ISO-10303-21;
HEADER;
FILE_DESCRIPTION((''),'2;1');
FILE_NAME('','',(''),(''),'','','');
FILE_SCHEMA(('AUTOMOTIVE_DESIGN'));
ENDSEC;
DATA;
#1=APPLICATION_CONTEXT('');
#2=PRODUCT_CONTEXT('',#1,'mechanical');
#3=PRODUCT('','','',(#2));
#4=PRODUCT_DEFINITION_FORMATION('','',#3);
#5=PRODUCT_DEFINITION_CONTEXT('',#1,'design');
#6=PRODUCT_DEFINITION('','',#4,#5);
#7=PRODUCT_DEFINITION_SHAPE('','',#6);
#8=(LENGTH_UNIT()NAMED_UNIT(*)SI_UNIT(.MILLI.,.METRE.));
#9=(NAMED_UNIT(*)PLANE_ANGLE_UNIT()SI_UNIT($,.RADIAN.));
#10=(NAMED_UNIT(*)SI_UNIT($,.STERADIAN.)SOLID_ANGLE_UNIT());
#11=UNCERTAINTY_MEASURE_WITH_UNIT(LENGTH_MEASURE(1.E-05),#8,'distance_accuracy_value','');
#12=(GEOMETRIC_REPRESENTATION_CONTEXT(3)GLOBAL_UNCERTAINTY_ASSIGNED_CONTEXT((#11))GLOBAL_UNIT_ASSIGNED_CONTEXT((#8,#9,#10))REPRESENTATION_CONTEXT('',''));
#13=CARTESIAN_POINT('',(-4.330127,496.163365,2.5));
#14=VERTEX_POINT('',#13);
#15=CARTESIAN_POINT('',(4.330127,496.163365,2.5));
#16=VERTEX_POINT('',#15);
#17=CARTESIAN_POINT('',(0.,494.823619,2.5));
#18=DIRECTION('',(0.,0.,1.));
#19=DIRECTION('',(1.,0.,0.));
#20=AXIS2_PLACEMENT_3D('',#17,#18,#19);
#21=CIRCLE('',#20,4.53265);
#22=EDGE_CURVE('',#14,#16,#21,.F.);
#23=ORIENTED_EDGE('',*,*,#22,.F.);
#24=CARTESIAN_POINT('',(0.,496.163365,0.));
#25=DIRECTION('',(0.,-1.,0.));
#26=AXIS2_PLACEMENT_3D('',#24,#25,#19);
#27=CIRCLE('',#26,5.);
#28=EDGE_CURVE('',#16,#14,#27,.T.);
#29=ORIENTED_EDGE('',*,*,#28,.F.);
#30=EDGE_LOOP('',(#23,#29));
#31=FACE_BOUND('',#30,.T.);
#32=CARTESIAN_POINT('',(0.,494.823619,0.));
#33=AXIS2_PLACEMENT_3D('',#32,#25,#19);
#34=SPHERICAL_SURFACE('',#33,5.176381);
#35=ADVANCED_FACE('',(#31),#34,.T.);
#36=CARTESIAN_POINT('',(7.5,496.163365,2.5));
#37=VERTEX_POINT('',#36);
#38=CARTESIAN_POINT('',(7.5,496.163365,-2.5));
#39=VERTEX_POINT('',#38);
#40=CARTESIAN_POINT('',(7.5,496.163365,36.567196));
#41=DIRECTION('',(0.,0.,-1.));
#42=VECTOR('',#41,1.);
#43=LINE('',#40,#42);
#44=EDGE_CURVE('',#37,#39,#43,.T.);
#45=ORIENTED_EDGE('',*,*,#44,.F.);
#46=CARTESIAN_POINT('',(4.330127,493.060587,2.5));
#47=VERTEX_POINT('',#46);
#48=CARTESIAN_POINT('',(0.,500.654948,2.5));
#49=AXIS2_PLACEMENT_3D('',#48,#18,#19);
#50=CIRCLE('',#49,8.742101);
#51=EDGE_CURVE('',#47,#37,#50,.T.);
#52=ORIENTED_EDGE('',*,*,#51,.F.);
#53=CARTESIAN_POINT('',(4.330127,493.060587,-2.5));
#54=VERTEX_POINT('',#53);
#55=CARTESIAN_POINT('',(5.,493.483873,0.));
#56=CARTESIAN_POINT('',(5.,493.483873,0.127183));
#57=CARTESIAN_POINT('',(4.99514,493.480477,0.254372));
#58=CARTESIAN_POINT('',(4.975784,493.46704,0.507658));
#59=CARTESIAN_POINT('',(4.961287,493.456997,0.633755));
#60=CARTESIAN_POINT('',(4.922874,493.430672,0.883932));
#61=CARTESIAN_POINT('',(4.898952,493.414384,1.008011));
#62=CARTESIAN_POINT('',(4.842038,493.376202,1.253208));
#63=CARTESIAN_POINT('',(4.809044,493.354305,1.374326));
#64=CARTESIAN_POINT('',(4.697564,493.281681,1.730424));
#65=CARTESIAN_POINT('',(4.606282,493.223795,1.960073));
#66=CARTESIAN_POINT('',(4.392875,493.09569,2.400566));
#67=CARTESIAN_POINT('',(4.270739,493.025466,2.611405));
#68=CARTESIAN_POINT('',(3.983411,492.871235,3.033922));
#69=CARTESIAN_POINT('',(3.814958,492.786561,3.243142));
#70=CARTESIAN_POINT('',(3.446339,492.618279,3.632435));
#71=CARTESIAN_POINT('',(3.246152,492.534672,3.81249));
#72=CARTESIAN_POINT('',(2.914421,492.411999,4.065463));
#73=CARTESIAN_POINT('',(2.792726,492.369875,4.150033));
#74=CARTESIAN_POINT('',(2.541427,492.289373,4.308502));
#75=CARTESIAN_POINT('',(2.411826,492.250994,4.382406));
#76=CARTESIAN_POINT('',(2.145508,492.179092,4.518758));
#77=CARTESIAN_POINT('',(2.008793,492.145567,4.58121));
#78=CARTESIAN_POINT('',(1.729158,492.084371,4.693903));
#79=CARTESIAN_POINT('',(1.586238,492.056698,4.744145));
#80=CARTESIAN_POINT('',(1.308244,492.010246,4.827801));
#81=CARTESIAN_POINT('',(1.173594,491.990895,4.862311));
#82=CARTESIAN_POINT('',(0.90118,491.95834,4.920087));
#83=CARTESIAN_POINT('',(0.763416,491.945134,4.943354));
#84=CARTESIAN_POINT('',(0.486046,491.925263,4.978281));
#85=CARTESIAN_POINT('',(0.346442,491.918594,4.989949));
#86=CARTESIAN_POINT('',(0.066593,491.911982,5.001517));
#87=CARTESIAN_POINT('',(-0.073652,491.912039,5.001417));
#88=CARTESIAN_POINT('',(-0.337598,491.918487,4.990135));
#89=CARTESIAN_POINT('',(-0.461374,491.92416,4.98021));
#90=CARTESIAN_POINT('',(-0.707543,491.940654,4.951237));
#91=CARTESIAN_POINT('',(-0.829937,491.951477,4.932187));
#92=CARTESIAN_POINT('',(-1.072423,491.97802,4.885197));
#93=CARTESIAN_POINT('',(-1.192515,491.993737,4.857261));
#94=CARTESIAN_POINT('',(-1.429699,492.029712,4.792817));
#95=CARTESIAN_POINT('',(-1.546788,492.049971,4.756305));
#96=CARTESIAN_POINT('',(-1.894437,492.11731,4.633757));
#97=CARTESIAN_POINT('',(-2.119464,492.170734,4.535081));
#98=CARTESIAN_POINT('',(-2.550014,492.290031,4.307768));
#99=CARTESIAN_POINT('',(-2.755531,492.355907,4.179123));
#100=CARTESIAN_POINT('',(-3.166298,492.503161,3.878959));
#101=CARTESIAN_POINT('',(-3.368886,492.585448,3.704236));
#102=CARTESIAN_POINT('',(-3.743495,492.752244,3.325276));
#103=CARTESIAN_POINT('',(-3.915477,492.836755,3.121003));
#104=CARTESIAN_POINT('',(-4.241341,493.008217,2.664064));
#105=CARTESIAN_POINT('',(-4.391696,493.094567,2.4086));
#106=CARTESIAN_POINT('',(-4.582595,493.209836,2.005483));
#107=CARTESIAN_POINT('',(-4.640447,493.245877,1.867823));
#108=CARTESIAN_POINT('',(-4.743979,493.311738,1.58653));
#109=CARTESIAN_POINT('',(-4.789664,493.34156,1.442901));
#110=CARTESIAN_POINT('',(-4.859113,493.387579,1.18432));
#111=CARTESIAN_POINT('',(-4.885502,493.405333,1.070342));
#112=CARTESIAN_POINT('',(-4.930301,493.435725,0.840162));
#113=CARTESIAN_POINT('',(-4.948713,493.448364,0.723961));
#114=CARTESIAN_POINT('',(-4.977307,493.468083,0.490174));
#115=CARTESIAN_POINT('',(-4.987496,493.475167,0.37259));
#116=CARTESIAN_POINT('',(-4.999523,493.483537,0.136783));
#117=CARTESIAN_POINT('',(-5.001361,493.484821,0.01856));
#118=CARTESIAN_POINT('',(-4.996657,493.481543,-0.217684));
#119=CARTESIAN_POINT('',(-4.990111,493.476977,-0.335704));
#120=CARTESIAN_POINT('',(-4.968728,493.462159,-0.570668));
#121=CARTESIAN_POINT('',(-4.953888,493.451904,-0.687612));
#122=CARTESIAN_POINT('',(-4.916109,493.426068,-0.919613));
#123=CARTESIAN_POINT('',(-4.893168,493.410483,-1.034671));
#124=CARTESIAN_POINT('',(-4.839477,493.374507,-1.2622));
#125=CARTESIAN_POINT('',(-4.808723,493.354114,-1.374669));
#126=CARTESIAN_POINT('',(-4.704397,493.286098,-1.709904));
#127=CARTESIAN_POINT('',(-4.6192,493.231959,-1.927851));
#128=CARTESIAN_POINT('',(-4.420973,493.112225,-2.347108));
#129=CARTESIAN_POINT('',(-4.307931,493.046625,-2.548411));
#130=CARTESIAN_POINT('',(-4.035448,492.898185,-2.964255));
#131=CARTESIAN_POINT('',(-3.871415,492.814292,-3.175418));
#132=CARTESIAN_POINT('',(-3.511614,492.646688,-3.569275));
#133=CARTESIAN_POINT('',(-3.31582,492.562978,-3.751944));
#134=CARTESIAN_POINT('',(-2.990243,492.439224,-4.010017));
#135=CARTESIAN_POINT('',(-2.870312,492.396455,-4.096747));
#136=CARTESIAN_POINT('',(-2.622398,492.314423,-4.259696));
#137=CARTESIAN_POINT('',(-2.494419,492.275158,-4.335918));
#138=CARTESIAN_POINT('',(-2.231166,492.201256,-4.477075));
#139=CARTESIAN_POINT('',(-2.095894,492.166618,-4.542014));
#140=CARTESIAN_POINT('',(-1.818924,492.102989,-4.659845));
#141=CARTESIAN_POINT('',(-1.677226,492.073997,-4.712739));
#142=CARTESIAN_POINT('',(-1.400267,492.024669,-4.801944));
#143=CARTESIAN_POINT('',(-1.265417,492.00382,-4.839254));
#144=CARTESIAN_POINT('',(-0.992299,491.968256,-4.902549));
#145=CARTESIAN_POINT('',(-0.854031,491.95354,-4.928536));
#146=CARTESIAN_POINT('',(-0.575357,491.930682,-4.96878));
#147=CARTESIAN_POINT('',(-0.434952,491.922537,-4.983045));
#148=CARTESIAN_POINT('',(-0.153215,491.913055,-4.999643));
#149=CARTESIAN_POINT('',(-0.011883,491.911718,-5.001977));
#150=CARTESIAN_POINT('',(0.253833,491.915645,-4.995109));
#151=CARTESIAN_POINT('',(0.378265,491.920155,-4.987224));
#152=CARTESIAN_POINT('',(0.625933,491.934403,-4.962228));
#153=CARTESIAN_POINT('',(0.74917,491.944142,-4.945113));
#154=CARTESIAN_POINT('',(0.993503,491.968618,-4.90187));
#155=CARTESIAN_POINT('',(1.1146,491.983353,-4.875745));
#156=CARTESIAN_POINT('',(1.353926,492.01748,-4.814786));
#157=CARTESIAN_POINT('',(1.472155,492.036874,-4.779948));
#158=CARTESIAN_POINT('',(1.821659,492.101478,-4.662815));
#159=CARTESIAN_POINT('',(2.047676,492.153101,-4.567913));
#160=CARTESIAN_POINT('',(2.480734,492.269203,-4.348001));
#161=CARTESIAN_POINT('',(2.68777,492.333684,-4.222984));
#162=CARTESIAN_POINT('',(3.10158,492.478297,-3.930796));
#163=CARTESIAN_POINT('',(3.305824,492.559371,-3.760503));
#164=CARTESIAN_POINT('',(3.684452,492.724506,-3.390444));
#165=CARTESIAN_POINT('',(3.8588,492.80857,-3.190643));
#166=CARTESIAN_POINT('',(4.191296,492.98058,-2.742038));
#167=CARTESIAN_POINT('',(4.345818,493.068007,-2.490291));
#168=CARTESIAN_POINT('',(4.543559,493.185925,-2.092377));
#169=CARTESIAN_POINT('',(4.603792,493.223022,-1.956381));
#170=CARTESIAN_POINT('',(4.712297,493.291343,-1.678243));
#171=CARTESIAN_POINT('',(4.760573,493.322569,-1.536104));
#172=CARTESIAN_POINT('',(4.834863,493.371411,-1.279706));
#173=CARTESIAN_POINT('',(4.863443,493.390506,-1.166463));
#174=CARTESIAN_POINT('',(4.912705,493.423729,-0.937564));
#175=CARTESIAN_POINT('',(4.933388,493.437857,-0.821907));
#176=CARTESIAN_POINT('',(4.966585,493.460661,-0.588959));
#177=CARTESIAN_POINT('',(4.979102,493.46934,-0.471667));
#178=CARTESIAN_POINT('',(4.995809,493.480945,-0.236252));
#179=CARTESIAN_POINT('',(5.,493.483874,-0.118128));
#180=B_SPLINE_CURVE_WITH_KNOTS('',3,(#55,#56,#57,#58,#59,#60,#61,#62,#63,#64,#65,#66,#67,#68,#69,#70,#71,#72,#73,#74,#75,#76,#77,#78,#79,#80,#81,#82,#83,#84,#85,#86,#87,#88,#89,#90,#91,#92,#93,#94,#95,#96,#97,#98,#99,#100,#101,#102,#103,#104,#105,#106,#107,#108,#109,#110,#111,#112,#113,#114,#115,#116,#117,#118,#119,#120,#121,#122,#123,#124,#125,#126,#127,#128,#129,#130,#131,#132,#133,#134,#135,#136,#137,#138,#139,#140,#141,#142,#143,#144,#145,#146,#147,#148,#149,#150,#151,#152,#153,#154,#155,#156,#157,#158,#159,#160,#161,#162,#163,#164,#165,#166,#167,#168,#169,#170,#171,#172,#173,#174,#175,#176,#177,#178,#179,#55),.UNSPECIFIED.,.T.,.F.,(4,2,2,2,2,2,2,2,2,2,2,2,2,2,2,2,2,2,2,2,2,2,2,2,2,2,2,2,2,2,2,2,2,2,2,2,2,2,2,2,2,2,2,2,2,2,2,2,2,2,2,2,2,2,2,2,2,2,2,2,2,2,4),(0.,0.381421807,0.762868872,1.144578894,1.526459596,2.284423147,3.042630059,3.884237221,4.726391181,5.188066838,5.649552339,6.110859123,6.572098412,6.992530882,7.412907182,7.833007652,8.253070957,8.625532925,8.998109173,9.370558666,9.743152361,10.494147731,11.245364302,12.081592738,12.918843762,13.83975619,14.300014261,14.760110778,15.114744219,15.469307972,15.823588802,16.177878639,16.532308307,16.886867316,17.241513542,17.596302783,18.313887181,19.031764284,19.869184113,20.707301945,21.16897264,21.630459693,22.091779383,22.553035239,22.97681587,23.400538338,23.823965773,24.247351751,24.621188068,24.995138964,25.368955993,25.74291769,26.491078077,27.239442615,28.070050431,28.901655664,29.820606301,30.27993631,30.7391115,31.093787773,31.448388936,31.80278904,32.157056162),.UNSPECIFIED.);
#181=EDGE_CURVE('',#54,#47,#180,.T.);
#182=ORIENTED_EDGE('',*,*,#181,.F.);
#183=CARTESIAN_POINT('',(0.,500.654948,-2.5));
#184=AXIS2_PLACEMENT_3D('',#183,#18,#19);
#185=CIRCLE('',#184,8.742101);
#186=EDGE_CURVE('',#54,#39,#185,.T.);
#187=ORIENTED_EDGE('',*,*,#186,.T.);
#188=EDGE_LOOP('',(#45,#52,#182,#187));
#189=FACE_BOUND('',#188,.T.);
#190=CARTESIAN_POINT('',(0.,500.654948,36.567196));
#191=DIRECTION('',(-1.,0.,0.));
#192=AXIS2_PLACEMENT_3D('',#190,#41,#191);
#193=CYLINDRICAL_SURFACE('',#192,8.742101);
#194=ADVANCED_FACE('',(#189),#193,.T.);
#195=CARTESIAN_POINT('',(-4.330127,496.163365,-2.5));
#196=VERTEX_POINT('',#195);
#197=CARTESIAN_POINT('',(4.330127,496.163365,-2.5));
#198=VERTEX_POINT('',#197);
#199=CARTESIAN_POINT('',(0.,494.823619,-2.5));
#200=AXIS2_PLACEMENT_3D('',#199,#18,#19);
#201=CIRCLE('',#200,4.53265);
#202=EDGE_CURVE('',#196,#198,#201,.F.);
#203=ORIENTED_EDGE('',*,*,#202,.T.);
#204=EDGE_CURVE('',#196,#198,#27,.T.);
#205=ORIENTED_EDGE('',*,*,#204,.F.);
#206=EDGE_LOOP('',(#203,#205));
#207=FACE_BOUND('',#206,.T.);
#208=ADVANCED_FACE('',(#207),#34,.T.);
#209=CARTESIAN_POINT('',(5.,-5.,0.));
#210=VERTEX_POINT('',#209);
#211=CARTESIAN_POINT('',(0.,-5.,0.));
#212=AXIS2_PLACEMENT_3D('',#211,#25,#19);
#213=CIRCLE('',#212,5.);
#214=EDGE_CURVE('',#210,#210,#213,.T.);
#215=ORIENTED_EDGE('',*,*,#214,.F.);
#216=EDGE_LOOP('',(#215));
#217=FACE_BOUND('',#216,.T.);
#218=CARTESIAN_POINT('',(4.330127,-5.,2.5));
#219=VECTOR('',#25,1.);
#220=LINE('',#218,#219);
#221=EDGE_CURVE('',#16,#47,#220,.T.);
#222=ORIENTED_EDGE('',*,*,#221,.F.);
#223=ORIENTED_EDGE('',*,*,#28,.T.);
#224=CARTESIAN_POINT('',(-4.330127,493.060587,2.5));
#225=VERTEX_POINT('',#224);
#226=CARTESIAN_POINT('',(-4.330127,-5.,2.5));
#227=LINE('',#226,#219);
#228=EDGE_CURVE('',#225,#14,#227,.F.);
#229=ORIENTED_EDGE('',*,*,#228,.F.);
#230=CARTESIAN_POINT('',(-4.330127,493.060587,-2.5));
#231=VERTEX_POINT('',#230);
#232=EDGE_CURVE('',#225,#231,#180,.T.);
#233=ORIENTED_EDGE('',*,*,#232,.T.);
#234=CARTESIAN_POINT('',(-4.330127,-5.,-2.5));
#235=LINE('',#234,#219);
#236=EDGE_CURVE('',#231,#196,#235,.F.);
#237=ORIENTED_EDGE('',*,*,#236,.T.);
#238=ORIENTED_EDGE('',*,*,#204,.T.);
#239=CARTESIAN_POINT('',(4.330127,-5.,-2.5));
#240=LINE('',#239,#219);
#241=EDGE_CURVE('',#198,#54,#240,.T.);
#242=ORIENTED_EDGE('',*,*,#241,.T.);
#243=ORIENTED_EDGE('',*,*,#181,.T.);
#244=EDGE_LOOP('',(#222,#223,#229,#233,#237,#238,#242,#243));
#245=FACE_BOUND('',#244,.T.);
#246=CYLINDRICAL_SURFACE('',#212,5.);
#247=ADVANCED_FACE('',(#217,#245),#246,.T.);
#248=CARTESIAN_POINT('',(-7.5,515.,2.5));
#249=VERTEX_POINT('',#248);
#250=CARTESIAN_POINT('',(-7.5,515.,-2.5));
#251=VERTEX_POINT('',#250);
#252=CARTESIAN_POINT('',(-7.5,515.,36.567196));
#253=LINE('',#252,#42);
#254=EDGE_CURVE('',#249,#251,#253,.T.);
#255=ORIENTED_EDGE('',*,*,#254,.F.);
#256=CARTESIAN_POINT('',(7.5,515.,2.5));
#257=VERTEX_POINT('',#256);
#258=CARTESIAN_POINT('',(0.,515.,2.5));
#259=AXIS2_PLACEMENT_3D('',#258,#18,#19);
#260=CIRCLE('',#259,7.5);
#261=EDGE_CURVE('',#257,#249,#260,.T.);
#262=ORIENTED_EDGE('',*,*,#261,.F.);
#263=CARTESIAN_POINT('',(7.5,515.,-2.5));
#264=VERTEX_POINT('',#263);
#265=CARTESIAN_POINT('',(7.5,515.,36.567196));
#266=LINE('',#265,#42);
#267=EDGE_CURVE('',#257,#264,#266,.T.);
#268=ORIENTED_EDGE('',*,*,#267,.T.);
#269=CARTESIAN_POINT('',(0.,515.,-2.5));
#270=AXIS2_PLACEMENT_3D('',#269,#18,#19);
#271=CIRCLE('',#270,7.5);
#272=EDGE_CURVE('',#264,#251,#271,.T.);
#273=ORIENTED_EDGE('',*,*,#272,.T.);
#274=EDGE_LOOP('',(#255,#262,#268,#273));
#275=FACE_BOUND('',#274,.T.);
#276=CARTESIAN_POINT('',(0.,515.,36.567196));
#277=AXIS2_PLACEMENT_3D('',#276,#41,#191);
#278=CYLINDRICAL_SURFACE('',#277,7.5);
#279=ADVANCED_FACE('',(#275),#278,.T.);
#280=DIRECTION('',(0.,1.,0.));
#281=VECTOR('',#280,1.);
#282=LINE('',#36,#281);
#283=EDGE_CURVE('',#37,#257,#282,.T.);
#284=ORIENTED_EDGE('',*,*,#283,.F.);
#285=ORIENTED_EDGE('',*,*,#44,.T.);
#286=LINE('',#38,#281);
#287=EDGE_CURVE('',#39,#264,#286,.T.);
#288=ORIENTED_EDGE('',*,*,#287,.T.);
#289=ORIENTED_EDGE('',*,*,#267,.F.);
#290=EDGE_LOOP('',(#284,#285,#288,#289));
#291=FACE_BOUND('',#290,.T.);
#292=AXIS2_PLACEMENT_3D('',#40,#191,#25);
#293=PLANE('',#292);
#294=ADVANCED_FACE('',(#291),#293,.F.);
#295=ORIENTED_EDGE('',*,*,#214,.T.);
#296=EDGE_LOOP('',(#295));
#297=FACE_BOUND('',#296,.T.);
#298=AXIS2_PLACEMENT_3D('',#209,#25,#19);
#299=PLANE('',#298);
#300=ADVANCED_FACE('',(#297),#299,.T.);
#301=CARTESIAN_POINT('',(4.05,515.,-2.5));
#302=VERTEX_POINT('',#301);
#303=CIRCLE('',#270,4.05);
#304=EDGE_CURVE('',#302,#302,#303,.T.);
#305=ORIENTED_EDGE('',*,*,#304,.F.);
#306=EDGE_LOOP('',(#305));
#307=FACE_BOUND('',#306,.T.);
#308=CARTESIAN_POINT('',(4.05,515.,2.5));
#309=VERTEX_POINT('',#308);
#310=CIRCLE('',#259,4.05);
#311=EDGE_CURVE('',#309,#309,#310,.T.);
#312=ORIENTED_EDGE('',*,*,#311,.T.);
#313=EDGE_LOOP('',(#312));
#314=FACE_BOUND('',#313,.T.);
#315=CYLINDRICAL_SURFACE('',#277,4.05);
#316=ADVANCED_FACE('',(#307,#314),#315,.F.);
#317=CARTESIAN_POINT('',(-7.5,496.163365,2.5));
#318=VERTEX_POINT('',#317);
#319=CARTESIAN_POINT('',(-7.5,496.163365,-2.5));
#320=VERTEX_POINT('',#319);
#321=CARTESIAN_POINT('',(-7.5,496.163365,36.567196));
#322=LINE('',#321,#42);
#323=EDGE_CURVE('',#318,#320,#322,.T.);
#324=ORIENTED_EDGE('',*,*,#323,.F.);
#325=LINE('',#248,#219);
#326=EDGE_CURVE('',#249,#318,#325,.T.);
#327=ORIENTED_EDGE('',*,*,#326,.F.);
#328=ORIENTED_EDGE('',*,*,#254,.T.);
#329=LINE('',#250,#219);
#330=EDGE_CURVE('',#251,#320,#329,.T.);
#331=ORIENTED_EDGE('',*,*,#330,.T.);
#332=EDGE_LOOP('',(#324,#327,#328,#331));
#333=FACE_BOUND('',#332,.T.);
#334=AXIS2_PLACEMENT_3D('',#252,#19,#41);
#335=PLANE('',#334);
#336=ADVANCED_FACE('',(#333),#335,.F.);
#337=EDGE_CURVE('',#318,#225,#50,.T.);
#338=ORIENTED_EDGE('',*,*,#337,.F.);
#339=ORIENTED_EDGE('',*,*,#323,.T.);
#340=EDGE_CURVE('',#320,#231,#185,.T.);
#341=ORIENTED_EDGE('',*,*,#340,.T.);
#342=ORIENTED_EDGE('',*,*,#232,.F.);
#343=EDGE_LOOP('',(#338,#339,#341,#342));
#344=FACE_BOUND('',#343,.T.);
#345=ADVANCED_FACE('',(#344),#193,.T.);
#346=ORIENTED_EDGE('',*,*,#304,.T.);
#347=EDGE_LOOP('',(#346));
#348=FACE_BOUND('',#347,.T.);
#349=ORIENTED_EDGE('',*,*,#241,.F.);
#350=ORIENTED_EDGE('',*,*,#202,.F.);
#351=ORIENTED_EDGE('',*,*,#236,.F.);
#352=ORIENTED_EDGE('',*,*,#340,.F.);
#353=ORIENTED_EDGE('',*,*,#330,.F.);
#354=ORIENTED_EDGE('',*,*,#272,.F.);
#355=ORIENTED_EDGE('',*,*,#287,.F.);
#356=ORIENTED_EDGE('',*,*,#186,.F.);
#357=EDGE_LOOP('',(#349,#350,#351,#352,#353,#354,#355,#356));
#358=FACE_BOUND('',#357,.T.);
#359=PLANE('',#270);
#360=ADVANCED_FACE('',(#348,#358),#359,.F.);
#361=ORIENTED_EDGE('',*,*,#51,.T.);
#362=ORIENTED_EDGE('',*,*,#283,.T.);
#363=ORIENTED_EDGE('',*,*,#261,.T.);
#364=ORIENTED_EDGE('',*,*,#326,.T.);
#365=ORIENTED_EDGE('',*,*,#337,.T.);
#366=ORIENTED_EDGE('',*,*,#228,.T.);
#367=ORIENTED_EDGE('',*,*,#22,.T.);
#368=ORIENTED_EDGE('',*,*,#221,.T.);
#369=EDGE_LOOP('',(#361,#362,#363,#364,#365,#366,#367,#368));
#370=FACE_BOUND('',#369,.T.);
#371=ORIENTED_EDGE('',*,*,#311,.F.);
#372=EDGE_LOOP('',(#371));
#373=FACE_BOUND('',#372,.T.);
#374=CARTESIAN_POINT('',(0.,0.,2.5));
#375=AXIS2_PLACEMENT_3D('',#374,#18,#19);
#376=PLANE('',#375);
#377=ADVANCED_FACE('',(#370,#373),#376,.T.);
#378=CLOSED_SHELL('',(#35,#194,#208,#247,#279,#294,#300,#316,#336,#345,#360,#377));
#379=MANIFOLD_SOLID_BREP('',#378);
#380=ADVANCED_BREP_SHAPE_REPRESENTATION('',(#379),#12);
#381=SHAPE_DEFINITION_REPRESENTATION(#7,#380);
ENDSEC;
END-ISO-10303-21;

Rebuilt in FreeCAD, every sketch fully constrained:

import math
import FreeCAD as App
import Part
import Sketcher
Q = App.Units.Quantity

doc = App.newDocument("Part")
body = doc.addObject("PartDesign::Body", "Body")

sketch1 = body.newObject("Sketcher::SketchObject", "Sketch")
sketch1.AttachmentSupport = (doc.getObject("XY_Plane"), [""])
sketch1.MapMode = "FlatFace"
sketch1.addGeometry(Part.LineSegment(App.Vector(5, -5, 0), App.Vector(5, 496.163365, 0)), False)
sketch1.addGeometry(Part.ArcOfCircle(Part.Circle(App.Vector(0, 494.823619, 0), App.Vector(0, 0, 1), 5.176381), math.radians(15), math.radians(90)), False)
sketch1.addGeometry(Part.LineSegment(App.Vector(0, 500, 0), App.Vector(0, -5, 0)), False)
sketch1.addGeometry(Part.LineSegment(App.Vector(0, -5, 0), App.Vector(5, -5, 0)), False)
sketch1.addConstraint(Sketcher.Constraint("Coincident", 0, 2, 1, 1))
sketch1.addConstraint(Sketcher.Constraint("Coincident", 1, 2, 2, 1))
sketch1.addConstraint(Sketcher.Constraint("Coincident", 2, 2, 3, 1))
sketch1.addConstraint(Sketcher.Constraint("Coincident", 3, 2, 0, 1))
sketch1.addConstraint(Sketcher.Constraint("Vertical", 0))
sketch1.addConstraint(Sketcher.Constraint("Vertical", 2))
sketch1.addConstraint(Sketcher.Constraint("Horizontal", 3))
sketch1.addConstraint(Sketcher.Constraint("PointOnObject", 1, 3, -2))
sketch1.addConstraint(Sketcher.Constraint("PointOnObject", 1, 2, -2))
sketch1.addConstraint(Sketcher.Constraint("DistanceX", 3, 1, 3, 2, Q("5 mm")))
sketch1.addConstraint(Sketcher.Constraint("DistanceY", 2, 2, 2, 1, Q("505 mm")))
sketch1.addConstraint(Sketcher.Constraint("DistanceY", -1, 1, 1, 2, Q("500 mm")))
sketch1.addConstraint(Sketcher.Constraint("Radius", 1, Q("5.176381 mm")))
revolution = body.newObject("PartDesign::Revolution", "Revolution")
revolution.Profile = sketch1
revolution.ReferenceAxis = (sketch1, ["V_Axis"])
revolution.Angle = 360

sketch2 = body.newObject("Sketcher::SketchObject", "Sketch001")
sketch2.AttachmentSupport = (doc.getObject("XY_Plane"), [""])
sketch2.MapMode = "FlatFace"
sketch2.AttachmentOffset = App.Placement(App.Vector(0, 0, -2.500004), App.Rotation())
sketch2.addGeometry(Part.LineSegment(App.Vector(-7.5, 515, 0), App.Vector(-7.5, 496.163365, 0)), False)
sketch2.addGeometry(Part.ArcOfCircle(Part.Circle(App.Vector(0, 500.654948, 0), App.Vector(0, 0, 1), 8.742101), math.radians(-149.083545), math.radians(-30.916455)), False)
sketch2.addGeometry(Part.LineSegment(App.Vector(7.5, 496.163365, 0), App.Vector(7.5, 515, 0)), False)
sketch2.addGeometry(Part.ArcOfCircle(Part.Circle(App.Vector(0, 515, 0), App.Vector(0, 0, 1), 7.5), math.radians(0), math.radians(180)), False)
sketch2.addGeometry(Part.Circle(App.Vector(0, 515, 0), App.Vector(0, 0, 1), 4.05), False)
sketch2.addConstraint(Sketcher.Constraint("Coincident", 0, 2, 1, 1))
sketch2.addConstraint(Sketcher.Constraint("Coincident", 1, 2, 2, 1))
sketch2.addConstraint(Sketcher.Constraint("Tangent", 2, 2, 3, 1))
sketch2.addConstraint(Sketcher.Constraint("Tangent", 3, 2, 0, 1))
sketch2.addConstraint(Sketcher.Constraint("Vertical", 0))
sketch2.addConstraint(Sketcher.Constraint("Vertical", 2))
sketch2.addConstraint(Sketcher.Constraint("Coincident", 4, 3, 3, 3))
sketch2.addConstraint(Sketcher.Constraint("Symmetric", 0, 2, 1, 2, -2))
sketch2.addConstraint(Sketcher.Constraint("Diameter", 4, Q("8.1 mm")))
sketch2.addConstraint(Sketcher.Constraint("Radius", 3, Q("7.5 mm")))
sketch2.addConstraint(Sketcher.Constraint("DistanceY", -1, 1, 3, 3, Q("515 mm")))
sketch2.addConstraint(Sketcher.Constraint("Radius", 1, Q("8.742101 mm")))
sketch2.addConstraint(Sketcher.Constraint("DistanceY", 0, 2, 0, 1, Q("18.836635 mm")))
pad1 = body.newObject("PartDesign::Pad", "Pad")
pad1.Profile = sketch2
pad1.Length = 5.00001

doc.recompute()
